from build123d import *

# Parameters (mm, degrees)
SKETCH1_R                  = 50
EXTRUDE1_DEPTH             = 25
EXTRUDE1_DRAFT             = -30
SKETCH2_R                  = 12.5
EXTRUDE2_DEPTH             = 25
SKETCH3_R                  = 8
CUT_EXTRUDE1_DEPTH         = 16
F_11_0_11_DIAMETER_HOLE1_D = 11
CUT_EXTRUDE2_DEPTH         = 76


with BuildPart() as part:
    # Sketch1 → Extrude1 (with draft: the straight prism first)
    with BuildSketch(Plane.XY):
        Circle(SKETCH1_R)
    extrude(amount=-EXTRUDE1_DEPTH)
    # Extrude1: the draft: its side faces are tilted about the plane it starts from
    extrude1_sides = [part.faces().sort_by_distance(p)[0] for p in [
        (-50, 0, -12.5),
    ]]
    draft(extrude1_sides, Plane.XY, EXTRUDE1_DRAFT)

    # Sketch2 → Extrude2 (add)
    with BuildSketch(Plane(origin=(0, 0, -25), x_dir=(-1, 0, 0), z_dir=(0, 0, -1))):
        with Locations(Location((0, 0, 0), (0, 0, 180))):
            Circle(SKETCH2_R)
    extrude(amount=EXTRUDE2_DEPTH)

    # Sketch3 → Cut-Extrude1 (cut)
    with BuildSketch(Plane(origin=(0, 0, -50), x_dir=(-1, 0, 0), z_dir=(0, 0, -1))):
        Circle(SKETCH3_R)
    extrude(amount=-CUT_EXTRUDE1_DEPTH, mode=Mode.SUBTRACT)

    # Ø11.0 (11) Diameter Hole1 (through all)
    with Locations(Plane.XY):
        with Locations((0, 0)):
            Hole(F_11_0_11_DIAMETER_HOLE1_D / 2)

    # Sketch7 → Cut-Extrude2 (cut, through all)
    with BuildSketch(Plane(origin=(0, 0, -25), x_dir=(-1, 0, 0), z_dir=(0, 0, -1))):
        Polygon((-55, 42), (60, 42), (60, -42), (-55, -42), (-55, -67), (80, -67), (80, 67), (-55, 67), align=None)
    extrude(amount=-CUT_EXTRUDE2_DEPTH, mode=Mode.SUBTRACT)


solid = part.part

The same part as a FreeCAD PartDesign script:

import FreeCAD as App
import Part
import Sketcher
Q = App.Units.Quantity


def faces_at(feature, points):
    """Names of the faces that lie closest to the given points."""
    faces = feature.Shape.Faces
    near = lambda p: min(range(len(faces)), key=lambda i: faces[i].distToShape(Part.Vertex(*p))[0])
    return sorted({f"Face{near(p) + 1}" for p in points})

doc = App.newDocument("Part")
params = doc.addObject("Spreadsheet::Sheet", "Params")
for row, (alias, value) in enumerate([
    ("sketch1_diameter", "100 mm"),
    ("pad1_length", "25 mm"),
    ("draft_angle", "30 deg"),
    ("sketch2_diameter", "25 mm"),
    ("pad2_length", "25 mm"),
    ("sketch3_diameter", "16 mm"),
    ("pocket1_length", "16 mm"),
    ("sketch4_diameter", "11 mm"),
    ("hole_diameter", "11 mm"),
    ("sketch5_width", "115 mm"),
    ("sketch5_width2", "135 mm"),
    ("sketch5_height", "84 mm"),
    ("sketch5_height2", "25 mm"),
], start=1):
    params.set(f"A{row}", alias)
    params.set(f"B{row}", "=" + value)
    params.setAlias(f"B{row}", alias)

body = doc.addObject("PartDesign::Body", "Body")

sketch1 = body.newObject("Sketcher::SketchObject", "Sketch")
sketch1.AttachmentSupport = (doc.getObject("XY_Plane"), [""])
sketch1.MapMode = "FlatFace"
sketch1.addGeometry(Part.Circle(App.Vector(0, 0, 0), App.Vector(0, 0, 1), 50), False)
sketch1.addConstraint([
    Sketcher.Constraint("Coincident", 0, 3, -1, 1),
    Sketcher.Constraint("Diameter", 0, Q("100 mm")),
])
sketch1.setExpression("Constraints[1]", "Params.sketch1_diameter")
pad1 = body.newObject("PartDesign::Pad", "Pad")
pad1.Profile = sketch1
pad1.setExpression("Length", "Params.pad1_length")
pad1.Reversed = True
doc.recompute()

draft = body.newObject("PartDesign::Draft", "Draft")
draft.Base = (pad1, faces_at(pad1, [(-50, 0, -12.5)]))
draft.NeutralPlane = (doc.getObject("XY_Plane"), [""])
draft.setExpression("Angle", "Params.draft_angle")
draft.Reversed = True

sketch2 = body.newObject("Sketcher::SketchObject", "Sketch001")
sketch2.AttachmentSupport = (doc.getObject("XY_Plane"), [""])
sketch2.MapMode = "FlatFace"
sketch2.AttachmentOffset = App.Placement(App.Vector(0, 0, -25), App.Rotation())
sketch2.addGeometry(Part.Circle(App.Vector(0, 0, 0), App.Vector(0, 0, 1), 12.5), False)
sketch2.addConstraint([
    Sketcher.Constraint("Coincident", 0, 3, -1, 1),
    Sketcher.Constraint("Diameter", 0, Q("25 mm")),
])
sketch2.setExpression("Constraints[1]", "Params.sketch2_diameter")
pad2 = body.newObject("PartDesign::Pad", "Pad001")
pad2.Profile = sketch2
pad2.setExpression("Length", "Params.pad2_length")
pad2.Reversed = True

sketch3 = body.newObject("Sketcher::SketchObject", "Sketch002")
sketch3.AttachmentSupport = (doc.getObject("XY_Plane"), [""])
sketch3.MapMode = "FlatFace"
sketch3.AttachmentOffset = App.Placement(App.Vector(0, 0, -50), App.Rotation())
sketch3.addGeometry(Part.Circle(App.Vector(0, 0, 0), App.Vector(0, 0, 1), 8), False)
sketch3.addConstraint([
    Sketcher.Constraint("Coincident", 0, 3, -1, 1),
    Sketcher.Constraint("Diameter", 0, Q("16 mm")),
])
sketch3.setExpression("Constraints[1]", "Params.sketch3_diameter")
pocket1 = body.newObject("PartDesign::Pocket", "Pocket")
pocket1.Profile = sketch3
pocket1.setExpression("Length", "Params.pocket1_length")
pocket1.Reversed = True

sketch4 = body.newObject("Sketcher::SketchObject", "Sketch003")
sketch4.AttachmentSupport = (doc.getObject("XY_Plane"), [""])
sketch4.MapMode = "FlatFace"
sketch4.addGeometry(Part.Circle(App.Vector(0, 0, 0), App.Vector(0, 0, 1), 5.5), False)
sketch4.addConstraint([
    Sketcher.Constraint("Coincident", 0, 3, -1, 1),
    Sketcher.Constraint("Diameter", 0, Q("11 mm")),
])
sketch4.setExpression("Constraints[1]", "Params.sketch4_diameter")
doc.recompute()
hole = body.newObject("PartDesign::Hole", "Hole")
hole.Profile = sketch4
hole.ThreadType = "None"
hole.setExpression("Diameter", "Params.hole_diameter")
hole.DepthType = "ThroughAll"

sketch5 = body.newObject("Sketcher::SketchObject", "Sketch004")
sketch5.AttachmentSupport = (doc.getObject("XY_Plane"), [""])
sketch5.MapMode = "FlatFace"
sketch5.AttachmentOffset = App.Placement(App.Vector(0, 0, -25), App.Rotation())
sketch5.addGeometry([
    Part.LineSegment(App.Vector(55, 42, 0), App.Vector(-60, 42, 0)),
    Part.LineSegment(App.Vector(-60, 42, 0), App.Vector(-60, -42, 0)),
    Part.LineSegment(App.Vector(-60, -42, 0), App.Vector(55, -42, 0)),
    Part.LineSegment(App.Vector(55, -42, 0), App.Vector(55, -67, 0)),
    Part.LineSegment(App.Vector(55, -67, 0), App.Vector(-80, -67, 0)),
    Part.LineSegment(App.Vector(-80, -67, 0), App.Vector(-80, 67, 0)),
    Part.LineSegment(App.Vector(-80, 67, 0), App.Vector(55, 67, 0)),
    Part.LineSegment(App.Vector(55, 67, 0), App.Vector(55, 42, 0)),
], False)
sketch5.addConstraint([
    Sketcher.Constraint("Coincident", 0, 2, 1, 1),
    Sketcher.Constraint("Coincident", 1, 2, 2, 1),
    Sketcher.Constraint("Coincident", 2, 2, 3, 1),
    Sketcher.Constraint("Coincident", 3, 2, 4, 1),
    Sketcher.Constraint("Coincident", 4, 2, 5, 1),
    Sketcher.Constraint("Coincident", 5, 2, 6, 1),
    Sketcher.Constraint("Coincident", 6, 2, 7, 1),
    Sketcher.Constraint("Coincident", 7, 2, 0, 1),
    Sketcher.Constraint("Horizontal", 0),
    Sketcher.Constraint("Vertical", 1),
    Sketcher.Constraint("Horizontal", 2),
    Sketcher.Constraint("Vertical", 3),
    Sketcher.Constraint("Horizontal", 4),
    Sketcher.Constraint("Vertical", 5),
    Sketcher.Constraint("Horizontal", 6),
    Sketcher.Constraint("Vertical", 7),
    Sketcher.Constraint("Symmetric", 3, 2, 6, 2, -1),
    Sketcher.Constraint("Equal", 3, 7),
    Sketcher.Constraint("DistanceX", 0, 2, 0, 1, Q("115 mm")),
    Sketcher.Constraint("DistanceX", 4, 2, 4, 1, Q("135 mm")),
    Sketcher.Constraint("DistanceY", 1, 2, 1, 1, Q("84 mm")),
    Sketcher.Constraint("DistanceY", 3, 2, 3, 1, Q("25 mm")),
    Sketcher.Constraint("DistanceX", 0, 2, -1, 1, Q("60 mm")),
])
sketch5.setExpression("Constraints[18]", "Params.sketch5_width")
sketch5.setExpression("Constraints[19]", "Params.sketch5_width2")
sketch5.setExpression("Constraints[20]", "Params.sketch5_height")
sketch5.setExpression("Constraints[21]", "Params.sketch5_height2")
pocket2 = body.newObject("PartDesign::Pocket", "Pocket001")
pocket2.Profile = sketch5
pocket2.Type = "ThroughAll"
pocket2.Reversed = True

doc.recompute()
